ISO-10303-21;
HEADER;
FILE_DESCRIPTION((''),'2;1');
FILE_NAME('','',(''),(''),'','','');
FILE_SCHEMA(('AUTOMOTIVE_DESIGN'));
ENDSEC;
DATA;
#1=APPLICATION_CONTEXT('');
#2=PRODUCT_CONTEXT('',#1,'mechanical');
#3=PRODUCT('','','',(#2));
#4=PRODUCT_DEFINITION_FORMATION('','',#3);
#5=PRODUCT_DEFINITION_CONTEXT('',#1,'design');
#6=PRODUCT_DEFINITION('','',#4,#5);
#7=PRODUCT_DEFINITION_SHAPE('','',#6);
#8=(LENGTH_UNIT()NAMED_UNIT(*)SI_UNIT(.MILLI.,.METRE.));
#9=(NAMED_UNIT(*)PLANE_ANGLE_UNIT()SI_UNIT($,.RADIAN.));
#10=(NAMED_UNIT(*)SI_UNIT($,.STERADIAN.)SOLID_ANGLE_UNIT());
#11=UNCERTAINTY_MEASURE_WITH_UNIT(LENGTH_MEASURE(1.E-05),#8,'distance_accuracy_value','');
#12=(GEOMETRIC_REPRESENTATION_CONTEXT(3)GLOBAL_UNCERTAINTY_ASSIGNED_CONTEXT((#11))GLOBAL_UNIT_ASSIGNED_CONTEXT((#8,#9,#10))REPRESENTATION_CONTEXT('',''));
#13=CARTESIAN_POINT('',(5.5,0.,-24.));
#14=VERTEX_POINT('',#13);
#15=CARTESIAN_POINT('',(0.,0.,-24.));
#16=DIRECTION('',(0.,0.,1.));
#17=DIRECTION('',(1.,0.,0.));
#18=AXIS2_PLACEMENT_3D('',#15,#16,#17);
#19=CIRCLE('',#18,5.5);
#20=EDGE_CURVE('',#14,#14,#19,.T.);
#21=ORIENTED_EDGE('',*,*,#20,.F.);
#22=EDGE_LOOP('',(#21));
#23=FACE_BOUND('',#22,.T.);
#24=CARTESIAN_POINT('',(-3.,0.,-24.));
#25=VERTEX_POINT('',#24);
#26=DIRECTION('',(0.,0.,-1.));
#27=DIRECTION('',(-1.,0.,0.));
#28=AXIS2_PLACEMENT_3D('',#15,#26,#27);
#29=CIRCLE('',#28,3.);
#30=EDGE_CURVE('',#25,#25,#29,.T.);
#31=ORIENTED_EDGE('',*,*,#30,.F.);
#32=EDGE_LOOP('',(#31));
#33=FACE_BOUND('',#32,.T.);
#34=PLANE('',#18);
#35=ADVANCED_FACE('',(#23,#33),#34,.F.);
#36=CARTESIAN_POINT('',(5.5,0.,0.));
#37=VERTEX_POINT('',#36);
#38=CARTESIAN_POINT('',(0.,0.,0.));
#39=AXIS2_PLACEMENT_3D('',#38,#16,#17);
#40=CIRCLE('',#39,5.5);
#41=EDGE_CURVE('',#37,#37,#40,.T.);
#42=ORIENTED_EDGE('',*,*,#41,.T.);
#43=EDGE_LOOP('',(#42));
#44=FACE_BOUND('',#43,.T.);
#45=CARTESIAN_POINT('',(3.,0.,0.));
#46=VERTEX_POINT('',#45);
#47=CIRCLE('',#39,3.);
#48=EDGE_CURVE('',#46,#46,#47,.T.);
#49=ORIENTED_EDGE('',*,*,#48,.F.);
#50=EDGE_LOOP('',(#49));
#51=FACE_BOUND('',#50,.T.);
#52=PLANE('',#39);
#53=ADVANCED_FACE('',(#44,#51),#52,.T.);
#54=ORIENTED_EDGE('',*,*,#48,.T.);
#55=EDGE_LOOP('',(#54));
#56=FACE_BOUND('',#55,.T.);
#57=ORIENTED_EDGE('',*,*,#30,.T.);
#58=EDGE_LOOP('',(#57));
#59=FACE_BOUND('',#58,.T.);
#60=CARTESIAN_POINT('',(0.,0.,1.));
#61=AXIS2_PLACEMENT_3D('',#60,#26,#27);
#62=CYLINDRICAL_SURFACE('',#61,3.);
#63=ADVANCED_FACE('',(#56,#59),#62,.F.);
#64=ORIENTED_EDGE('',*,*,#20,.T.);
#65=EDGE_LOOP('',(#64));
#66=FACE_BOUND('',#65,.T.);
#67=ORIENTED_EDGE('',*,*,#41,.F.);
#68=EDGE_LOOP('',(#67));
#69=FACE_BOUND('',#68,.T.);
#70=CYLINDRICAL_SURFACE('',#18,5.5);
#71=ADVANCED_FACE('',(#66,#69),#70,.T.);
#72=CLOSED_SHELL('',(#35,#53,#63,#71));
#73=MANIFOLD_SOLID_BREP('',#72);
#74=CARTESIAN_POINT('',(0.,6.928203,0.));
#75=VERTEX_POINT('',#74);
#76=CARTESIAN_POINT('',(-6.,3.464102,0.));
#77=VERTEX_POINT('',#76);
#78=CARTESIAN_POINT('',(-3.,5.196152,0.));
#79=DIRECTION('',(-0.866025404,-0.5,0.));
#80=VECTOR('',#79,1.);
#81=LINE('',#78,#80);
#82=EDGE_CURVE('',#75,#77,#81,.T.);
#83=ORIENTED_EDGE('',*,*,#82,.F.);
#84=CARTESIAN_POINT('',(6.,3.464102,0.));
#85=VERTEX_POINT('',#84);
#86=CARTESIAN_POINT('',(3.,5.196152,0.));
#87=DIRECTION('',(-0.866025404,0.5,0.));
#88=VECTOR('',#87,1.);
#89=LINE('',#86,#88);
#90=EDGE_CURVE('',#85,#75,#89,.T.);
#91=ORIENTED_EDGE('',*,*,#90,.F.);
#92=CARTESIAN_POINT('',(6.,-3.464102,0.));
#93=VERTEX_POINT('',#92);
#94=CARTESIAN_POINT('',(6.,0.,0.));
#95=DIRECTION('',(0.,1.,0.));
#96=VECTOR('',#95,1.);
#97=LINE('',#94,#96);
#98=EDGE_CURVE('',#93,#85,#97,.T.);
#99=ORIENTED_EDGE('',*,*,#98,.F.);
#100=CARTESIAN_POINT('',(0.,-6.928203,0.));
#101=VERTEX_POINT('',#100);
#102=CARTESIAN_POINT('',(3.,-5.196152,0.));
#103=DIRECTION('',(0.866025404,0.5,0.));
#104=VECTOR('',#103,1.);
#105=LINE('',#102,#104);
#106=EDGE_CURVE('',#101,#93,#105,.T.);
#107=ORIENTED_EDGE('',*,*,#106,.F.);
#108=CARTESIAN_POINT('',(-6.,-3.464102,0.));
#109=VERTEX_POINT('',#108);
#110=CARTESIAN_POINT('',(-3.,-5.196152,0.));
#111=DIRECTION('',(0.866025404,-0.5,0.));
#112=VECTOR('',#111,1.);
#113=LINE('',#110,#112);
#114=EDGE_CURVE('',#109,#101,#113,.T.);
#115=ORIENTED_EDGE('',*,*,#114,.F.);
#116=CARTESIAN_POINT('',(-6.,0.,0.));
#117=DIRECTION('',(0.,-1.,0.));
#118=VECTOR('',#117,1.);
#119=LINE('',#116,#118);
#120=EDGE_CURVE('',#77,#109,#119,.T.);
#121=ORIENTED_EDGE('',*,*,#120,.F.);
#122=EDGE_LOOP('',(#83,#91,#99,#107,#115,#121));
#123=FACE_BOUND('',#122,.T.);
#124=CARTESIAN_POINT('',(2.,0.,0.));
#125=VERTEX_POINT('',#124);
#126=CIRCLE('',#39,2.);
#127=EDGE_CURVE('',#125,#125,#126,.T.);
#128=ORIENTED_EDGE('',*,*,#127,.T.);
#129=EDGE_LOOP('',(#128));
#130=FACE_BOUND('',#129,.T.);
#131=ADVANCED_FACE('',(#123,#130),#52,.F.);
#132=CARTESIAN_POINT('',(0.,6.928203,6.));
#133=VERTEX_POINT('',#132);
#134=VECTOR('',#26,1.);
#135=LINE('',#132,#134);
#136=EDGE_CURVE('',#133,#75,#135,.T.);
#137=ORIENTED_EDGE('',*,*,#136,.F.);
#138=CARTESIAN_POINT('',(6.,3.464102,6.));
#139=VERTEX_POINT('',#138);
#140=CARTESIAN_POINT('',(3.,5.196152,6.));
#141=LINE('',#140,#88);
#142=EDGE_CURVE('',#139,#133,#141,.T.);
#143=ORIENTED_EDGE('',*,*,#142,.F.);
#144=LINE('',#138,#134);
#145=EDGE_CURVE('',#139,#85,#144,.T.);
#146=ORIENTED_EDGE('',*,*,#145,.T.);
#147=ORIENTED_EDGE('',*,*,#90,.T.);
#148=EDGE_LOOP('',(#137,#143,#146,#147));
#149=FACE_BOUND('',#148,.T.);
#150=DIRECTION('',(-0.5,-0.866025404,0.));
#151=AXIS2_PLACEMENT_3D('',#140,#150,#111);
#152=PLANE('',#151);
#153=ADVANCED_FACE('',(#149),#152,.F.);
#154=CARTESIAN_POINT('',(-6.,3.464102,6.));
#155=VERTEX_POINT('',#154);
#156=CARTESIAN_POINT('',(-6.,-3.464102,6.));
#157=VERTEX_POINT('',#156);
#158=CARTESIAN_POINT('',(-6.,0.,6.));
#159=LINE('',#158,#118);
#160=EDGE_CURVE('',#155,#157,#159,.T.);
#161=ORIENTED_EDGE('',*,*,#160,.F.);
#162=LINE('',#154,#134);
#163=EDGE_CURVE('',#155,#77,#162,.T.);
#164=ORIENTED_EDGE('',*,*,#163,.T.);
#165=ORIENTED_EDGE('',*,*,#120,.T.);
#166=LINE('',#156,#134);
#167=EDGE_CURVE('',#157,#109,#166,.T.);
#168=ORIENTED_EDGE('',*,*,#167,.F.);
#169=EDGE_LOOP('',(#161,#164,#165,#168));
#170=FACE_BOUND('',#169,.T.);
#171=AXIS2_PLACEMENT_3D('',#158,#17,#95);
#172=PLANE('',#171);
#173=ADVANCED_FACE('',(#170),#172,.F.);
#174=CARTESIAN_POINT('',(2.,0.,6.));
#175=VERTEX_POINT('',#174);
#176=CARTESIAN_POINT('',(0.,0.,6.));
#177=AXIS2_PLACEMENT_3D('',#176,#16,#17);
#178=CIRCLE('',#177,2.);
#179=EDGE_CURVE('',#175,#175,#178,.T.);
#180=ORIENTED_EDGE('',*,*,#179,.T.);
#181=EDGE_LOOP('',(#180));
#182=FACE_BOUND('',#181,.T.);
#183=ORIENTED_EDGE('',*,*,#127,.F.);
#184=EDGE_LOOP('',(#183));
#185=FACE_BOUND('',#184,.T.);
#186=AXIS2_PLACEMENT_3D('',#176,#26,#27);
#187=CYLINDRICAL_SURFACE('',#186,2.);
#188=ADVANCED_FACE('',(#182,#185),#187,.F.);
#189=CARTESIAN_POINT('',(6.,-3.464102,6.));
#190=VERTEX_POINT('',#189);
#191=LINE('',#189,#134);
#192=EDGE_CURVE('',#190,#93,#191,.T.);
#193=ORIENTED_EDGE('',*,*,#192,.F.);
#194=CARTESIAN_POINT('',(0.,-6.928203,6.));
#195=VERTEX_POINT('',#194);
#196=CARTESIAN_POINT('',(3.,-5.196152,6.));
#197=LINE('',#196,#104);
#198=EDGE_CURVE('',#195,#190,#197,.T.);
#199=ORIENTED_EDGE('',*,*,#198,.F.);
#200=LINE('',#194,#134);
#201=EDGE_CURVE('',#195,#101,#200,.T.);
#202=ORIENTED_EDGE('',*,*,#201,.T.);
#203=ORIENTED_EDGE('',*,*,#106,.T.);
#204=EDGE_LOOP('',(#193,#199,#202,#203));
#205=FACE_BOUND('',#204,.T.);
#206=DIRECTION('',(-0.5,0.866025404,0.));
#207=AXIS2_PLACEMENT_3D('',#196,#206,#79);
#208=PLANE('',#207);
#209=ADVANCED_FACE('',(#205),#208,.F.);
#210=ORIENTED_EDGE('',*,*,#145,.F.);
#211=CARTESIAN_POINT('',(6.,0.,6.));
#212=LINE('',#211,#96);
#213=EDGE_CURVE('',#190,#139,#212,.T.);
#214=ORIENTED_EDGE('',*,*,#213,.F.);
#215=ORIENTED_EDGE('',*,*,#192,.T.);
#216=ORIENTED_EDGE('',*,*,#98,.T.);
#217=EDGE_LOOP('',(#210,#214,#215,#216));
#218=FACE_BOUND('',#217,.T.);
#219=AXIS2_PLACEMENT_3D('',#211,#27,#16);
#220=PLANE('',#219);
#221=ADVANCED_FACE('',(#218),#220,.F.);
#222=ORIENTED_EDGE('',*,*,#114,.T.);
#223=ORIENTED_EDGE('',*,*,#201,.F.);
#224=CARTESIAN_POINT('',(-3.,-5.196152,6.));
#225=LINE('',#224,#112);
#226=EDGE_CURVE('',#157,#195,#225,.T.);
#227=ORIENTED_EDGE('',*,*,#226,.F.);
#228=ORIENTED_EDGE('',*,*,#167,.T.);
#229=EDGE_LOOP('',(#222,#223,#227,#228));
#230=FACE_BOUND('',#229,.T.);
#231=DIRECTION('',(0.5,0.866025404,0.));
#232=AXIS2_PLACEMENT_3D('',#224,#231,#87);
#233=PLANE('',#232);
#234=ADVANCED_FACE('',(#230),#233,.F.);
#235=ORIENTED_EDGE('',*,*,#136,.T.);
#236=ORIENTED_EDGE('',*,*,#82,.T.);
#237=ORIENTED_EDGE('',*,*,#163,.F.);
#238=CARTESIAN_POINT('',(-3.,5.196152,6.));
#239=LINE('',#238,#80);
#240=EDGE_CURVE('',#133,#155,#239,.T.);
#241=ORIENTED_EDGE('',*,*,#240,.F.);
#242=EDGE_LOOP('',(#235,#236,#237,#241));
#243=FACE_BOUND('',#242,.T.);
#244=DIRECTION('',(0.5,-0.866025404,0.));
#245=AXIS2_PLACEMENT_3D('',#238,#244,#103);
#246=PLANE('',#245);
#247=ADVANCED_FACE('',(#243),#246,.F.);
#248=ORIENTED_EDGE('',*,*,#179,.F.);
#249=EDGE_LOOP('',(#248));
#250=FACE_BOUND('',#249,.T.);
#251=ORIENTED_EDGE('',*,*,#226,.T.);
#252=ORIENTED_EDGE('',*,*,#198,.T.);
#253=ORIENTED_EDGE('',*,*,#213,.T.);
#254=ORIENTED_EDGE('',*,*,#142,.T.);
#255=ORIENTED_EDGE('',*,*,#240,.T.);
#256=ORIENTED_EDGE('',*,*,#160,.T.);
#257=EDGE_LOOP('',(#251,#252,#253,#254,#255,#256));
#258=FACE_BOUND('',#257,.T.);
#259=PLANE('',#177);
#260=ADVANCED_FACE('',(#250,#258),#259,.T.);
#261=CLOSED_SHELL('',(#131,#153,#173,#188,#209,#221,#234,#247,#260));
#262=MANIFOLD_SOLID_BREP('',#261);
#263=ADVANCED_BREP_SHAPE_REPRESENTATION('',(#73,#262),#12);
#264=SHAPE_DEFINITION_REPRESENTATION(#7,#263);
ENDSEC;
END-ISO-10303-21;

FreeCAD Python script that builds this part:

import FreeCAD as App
import Part
import Sketcher
from FreeCAD import Vector
Q = App.Units.Quantity


def add_polygon(sketch, points):
    """Adds a closed chain of lines whose ends are joined by coincident constraints."""
    first, n = sketch.GeometryCount, len(points)
    for a, b in zip(points, points[1:] + points[:1]):
        sketch.addGeometry(Part.LineSegment(App.Vector(*a, 0), App.Vector(*b, 0)), False)
    for i in range(n):
        sketch.addConstraint(Sketcher.Constraint("Coincident", first + i, 2, first + (i + 1) % n, 1))

doc = App.newDocument("Part")
params = doc.addObject("Spreadsheet::Sheet", "Params")
for row, (alias, value) in enumerate([
    ("sketch1_diameter", "4 mm"),
    ("pad1_length", "6 mm"),
    ("sketch2_diameter", "11 mm"),
    ("sketch2_diameter2", "4 mm"),
    ("pad2_length", "24 mm"),
    ("sketch3_diameter", "6 mm"),
    ("pocket1_length", "25 mm"),
], start=1):
    params.set(f"A{row}", alias)
    params.set(f"B{row}", "=" + value)
    params.setAlias(f"B{row}", alias)

body = doc.addObject("PartDesign::Body", "Body")

# Sketch on XY plane
sketch1 = doc.addObject("Sketcher::SketchObject", "Sketch")
body.addObject(sketch1)
sketch1.AttachmentSupport = (doc.XY_Plane, [""])
sketch1.MapMode = "FlatFace"
add_polygon(sketch1, [(6, 3.5), (0, 6.9), (-6, 3.5), (-6, -3.5), (0, -6.9), (6, -3.5)])  # lines 0-5
sketch1.addGeometry(Part.Circle(Vector(0, 0, 0), Vector(0, 0, 1), 2), False)  # 6
sketch1.addConstraint([
    Sketcher.Constraint("Vertical", 2),
    Sketcher.Constraint("Vertical", 5),
    Sketcher.Constraint("Coincident", 6, 3, -1, 1),
    Sketcher.Constraint("Symmetric", 0, 2, 3, 2, -1, 1),
    Sketcher.Constraint("Symmetric", 1, 2, 4, 2, -1, 1),
    Sketcher.Constraint("PointOnObject", 0, 2, -2),
    Sketcher.Constraint("Parallel", 0, 3),
    Sketcher.Constraint("Horizontal", 2, 2, 4, 2),
    Sketcher.Constraint("Diameter", 6, Q("4 mm")),
    Sketcher.Constraint("Angle", 0, Q("150 deg")),
    Sketcher.Constraint("DistanceX", 1, 2, -1, 1, Q("6 mm")),
    Sketcher.Constraint("DistanceY", -1, 1, 1, 2, Q("3.464102 mm")),
])
sketch1.setExpression("Constraints[14]", "Params.sketch1_diameter")
pad1 = doc.addObject("PartDesign::Pad", "Pad")
body.addObject(pad1)
pad1.Profile = sketch1
pad1.setExpression("Length", "Params.pad1_length")
body2 = doc.addObject("PartDesign::Body", "Body001")

# Sketch on XY plane
sketch2 = doc.addObject("Sketcher::SketchObject", "Sketch001")
body2.addObject(sketch2)
sketch2.AttachmentSupport = (doc.getObject("XY_Plane001"), [""])
sketch2.MapMode = "FlatFace"
sketch2.addGeometry([
    Part.Circle(Vector(0, 0, 0), Vector(0, 0, 1), 5.5),
    Part.Circle(Vector(0, 0, 0), Vector(0, 0, 1), 2),
], False)
sketch2.addConstraint([
    Sketcher.Constraint("Coincident", 0, 3, -1, 1),
    Sketcher.Constraint("Coincident", 1, 3, -1, 1),
    Sketcher.Constraint("Diameter", 0, Q("11 mm")),
    Sketcher.Constraint("Diameter", 1, Q("4 mm")),
])
sketch2.setExpression("Constraints[2]", "Params.sketch2_diameter")
sketch2.setExpression("Constraints[3]", "Params.sketch2_diameter2")
pad2 = doc.addObject("PartDesign::Pad", "Pad001")
body2.addObject(pad2)
pad2.Profile = sketch2
pad2.setExpression("Length", "Params.pad2_length")
pad2.Reversed = True

# Sketch on XY plane
sketch3 = doc.addObject("Sketcher::SketchObject", "Sketch002")
body2.addObject(sketch3)
sketch3.AttachmentSupport = (doc.getObject("XY_Plane001"), [""])
sketch3.MapMode = "FlatFace"
sketch3.AttachmentOffset = App.Placement(Vector(0, 0, -24), App.Rotation())
sketch3.addGeometry(Part.Circle(Vector(0, 0, 0), Vector(0, 0, 1), 3), False)
sketch3.addConstraint([
    Sketcher.Constraint("Coincident", 0, 3, -1, 1),
    Sketcher.Constraint("Diameter", 0, Q("6 mm")),
])
sketch3.setExpression("Constraints[1]", "Params.sketch3_diameter")
pocket1 = doc.addObject("PartDesign::Pocket", "Pocket")
body2.addObject(pocket1)
pocket1.Profile = sketch3
pocket1.setExpression("Length", "Params.pocket1_length")
pocket1.Reversed = True

doc.recompute()
